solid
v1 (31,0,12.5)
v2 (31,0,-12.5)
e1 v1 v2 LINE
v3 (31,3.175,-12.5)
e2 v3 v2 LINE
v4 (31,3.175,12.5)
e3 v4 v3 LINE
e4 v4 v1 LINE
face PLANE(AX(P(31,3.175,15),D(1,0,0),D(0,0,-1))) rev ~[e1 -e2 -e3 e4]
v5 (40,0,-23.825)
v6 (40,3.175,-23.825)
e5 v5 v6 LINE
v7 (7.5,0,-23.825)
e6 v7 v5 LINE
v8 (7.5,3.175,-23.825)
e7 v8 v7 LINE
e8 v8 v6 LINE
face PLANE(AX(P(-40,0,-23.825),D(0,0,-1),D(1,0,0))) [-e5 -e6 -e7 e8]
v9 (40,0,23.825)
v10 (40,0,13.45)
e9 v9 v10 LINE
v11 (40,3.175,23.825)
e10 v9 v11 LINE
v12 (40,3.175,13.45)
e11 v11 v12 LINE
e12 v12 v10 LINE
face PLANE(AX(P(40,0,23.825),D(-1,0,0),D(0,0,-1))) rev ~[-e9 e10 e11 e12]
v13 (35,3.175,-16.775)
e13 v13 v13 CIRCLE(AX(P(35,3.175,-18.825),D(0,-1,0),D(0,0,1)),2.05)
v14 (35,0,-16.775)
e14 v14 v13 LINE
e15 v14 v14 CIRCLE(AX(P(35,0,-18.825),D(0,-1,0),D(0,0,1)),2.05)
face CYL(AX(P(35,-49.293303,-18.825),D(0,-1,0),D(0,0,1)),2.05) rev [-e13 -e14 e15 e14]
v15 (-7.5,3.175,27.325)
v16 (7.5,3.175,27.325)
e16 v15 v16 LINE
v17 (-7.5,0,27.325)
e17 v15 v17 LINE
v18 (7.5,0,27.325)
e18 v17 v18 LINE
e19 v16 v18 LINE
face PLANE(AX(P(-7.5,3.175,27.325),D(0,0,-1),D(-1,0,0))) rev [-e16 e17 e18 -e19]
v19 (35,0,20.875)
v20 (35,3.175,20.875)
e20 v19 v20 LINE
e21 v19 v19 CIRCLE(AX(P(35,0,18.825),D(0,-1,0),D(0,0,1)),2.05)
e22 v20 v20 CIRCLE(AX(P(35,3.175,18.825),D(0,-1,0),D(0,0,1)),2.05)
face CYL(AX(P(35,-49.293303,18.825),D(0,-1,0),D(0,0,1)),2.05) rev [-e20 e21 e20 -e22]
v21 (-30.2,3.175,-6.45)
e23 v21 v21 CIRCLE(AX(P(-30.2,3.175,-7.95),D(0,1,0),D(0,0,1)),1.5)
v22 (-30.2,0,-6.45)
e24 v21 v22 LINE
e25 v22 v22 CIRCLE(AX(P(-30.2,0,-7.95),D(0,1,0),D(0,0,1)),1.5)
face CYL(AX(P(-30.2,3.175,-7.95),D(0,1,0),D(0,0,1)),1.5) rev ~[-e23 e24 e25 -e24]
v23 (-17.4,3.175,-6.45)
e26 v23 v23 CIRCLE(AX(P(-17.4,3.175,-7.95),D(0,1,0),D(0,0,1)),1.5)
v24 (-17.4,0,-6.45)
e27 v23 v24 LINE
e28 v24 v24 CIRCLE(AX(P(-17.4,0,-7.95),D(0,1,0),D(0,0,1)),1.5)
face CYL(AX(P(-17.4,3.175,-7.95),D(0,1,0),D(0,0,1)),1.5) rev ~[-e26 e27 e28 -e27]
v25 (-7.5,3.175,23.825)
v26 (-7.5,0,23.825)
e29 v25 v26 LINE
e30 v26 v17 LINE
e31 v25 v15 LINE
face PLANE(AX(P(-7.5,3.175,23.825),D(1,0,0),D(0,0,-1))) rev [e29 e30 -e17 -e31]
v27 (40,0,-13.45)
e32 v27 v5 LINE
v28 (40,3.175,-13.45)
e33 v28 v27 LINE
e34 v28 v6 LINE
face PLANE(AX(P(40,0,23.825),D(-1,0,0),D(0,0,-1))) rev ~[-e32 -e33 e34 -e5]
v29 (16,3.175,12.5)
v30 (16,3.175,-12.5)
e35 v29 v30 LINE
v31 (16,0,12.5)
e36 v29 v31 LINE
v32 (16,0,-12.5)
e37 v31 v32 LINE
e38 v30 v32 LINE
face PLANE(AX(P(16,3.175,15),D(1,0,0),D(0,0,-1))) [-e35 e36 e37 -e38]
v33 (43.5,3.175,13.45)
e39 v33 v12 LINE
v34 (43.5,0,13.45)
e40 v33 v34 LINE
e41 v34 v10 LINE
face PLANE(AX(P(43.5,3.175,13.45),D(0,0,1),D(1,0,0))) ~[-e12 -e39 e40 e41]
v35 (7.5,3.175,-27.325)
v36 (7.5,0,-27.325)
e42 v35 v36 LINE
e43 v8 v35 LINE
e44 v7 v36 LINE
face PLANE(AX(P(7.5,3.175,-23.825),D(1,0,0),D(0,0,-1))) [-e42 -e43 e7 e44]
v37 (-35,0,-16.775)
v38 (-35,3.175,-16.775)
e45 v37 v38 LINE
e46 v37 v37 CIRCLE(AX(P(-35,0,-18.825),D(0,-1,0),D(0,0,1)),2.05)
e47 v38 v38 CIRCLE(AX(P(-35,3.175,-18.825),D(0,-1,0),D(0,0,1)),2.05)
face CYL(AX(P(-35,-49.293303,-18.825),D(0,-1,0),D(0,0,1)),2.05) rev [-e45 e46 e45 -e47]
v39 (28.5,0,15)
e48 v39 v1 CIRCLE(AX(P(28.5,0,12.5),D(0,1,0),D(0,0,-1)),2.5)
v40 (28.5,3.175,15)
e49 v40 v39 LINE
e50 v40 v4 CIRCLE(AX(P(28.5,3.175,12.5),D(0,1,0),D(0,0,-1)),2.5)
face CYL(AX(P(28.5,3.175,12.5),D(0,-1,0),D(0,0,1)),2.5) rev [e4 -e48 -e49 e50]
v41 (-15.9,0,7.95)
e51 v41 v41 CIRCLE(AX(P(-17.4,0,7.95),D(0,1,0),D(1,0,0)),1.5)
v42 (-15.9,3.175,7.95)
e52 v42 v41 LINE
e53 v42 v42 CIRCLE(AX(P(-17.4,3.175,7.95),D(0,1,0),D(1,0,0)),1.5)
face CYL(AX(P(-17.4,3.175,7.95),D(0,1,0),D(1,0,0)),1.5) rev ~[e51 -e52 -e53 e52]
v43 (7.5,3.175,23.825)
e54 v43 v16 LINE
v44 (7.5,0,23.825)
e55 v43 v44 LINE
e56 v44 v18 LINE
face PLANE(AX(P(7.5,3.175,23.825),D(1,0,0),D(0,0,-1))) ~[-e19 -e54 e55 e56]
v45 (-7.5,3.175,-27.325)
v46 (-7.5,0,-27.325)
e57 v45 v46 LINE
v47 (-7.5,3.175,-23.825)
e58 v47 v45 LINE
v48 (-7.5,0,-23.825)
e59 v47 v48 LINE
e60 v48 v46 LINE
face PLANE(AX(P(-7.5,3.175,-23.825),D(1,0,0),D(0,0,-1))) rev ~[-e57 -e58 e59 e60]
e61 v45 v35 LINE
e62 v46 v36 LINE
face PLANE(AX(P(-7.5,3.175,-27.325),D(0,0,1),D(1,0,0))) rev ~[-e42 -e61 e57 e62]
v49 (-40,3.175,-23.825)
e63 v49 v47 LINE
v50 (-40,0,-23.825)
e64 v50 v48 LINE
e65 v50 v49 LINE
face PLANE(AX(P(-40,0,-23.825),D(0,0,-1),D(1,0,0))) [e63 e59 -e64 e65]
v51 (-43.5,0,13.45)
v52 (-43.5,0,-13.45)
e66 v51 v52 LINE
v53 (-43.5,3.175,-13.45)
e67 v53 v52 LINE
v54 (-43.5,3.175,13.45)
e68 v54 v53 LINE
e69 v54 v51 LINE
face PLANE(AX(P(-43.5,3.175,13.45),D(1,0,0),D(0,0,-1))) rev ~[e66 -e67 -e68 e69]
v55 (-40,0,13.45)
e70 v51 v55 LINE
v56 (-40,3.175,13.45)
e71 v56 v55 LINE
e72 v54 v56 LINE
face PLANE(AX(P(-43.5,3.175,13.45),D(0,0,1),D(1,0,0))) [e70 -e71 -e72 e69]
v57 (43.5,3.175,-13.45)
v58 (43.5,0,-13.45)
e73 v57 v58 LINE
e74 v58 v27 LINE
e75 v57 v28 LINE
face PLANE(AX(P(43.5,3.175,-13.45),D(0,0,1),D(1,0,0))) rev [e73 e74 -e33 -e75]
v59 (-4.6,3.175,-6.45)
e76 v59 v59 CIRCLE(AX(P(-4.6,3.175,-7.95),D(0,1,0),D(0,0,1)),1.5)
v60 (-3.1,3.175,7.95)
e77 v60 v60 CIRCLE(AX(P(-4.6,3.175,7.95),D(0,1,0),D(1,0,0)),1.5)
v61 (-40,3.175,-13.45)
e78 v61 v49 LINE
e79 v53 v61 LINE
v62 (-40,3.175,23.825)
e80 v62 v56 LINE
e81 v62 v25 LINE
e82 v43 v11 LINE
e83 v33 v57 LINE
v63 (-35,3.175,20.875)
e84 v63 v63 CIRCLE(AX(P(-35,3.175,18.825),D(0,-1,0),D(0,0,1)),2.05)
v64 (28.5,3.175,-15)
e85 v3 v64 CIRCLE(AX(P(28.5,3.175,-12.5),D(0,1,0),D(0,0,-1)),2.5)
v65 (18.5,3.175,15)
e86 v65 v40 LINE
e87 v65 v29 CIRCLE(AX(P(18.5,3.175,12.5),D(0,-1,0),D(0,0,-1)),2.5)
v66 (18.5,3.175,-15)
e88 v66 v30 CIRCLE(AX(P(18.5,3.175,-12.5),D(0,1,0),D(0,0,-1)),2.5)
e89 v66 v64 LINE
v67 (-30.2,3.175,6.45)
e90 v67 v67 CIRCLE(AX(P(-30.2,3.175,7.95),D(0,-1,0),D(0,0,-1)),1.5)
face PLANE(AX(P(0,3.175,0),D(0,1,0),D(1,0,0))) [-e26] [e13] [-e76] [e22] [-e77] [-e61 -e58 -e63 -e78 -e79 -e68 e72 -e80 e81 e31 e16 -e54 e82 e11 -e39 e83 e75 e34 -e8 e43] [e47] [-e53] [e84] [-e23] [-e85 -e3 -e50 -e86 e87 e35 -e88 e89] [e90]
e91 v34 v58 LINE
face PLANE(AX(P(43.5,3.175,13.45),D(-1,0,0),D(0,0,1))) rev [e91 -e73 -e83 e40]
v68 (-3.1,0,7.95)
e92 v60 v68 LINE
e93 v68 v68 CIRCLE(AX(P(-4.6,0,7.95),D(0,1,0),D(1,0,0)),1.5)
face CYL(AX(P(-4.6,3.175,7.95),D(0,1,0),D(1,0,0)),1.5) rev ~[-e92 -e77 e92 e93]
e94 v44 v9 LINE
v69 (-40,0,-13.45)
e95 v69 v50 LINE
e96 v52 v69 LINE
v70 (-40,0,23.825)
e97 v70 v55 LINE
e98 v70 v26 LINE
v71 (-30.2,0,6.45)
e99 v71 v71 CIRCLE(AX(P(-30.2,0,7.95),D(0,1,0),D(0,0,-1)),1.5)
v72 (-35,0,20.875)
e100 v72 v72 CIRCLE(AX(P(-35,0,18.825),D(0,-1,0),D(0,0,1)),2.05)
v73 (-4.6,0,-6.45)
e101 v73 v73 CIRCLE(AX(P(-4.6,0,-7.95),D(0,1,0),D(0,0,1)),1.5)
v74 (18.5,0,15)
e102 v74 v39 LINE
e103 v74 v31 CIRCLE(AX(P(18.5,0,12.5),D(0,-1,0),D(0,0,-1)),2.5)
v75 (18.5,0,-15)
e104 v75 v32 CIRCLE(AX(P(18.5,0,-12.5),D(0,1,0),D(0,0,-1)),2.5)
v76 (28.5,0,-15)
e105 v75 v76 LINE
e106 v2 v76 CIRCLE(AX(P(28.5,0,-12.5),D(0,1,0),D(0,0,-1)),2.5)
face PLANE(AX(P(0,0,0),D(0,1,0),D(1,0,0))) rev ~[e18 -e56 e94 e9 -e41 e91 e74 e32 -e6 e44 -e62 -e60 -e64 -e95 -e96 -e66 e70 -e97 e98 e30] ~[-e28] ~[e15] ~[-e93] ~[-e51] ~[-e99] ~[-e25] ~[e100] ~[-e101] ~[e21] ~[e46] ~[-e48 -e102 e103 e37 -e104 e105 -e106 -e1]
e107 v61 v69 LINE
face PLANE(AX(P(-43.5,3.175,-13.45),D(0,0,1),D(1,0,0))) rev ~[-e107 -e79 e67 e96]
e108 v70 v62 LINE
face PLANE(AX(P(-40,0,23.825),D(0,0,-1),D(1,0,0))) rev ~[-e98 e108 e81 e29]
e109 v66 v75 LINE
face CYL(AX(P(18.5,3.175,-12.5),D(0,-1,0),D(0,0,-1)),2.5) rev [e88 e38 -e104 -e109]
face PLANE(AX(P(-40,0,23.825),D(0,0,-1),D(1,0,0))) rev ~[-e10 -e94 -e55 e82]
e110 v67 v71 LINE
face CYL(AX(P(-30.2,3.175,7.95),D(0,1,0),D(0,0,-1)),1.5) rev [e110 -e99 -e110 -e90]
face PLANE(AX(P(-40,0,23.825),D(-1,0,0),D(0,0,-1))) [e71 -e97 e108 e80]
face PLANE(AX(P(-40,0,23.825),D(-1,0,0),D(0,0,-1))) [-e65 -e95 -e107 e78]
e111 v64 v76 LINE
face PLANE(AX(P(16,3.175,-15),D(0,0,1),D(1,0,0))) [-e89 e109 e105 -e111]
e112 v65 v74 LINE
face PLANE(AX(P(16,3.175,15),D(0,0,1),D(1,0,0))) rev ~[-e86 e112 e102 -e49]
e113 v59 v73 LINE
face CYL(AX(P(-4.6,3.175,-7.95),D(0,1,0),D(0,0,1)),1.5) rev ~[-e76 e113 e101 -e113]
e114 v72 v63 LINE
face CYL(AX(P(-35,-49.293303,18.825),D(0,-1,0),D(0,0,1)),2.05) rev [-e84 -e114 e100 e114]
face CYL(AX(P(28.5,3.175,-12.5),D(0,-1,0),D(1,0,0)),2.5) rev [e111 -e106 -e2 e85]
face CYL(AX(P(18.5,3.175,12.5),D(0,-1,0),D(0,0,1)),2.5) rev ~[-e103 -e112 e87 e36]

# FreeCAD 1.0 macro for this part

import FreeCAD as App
import Part
import Sketcher
from FreeCAD import Vector
Q = App.Units.Quantity


def edges_at(feature, points):
    """Names of the edges that pass closest to the given points."""
    edges = feature.Shape.Edges
    near = lambda p: min(range(len(edges)), key=lambda i: edges[i].distToShape(Part.Vertex(*p))[0])
    return sorted({f"Edge{near(p) + 1}" for p in points})

doc = App.newDocument("Part")
body = doc.addObject("PartDesign::Body", "Body")

# Sketch on XZ plane
sketch1 = doc.addObject("Sketcher::SketchObject", "Sketch")
body.addObject(sketch1)
sketch1.AttachmentSupport = (doc.XZ_Plane, [""])
sketch1.MapMode = "FlatFace"
sketch1.addGeometry(Part.LineSegment(Vector(-40, -24, 0), Vector(-40, 24, 0)), False)
sketch1.addGeometry(Part.LineSegment(Vector(-40, 24, 0), Vector(40, 24, 0)), False)
sketch1.addGeometry(Part.LineSegment(Vector(40, 24, 0), Vector(40, -24, 0)), False)
sketch1.addGeometry(Part.LineSegment(Vector(40, -24, 0), Vector(-40, -24, 0)), False)
sketch1.addConstraint(Sketcher.Constraint("Coincident", 0, 2, 1, 1))
sketch1.addConstraint(Sketcher.Constraint("Coincident", 1, 2, 2, 1))
sketch1.addConstraint(Sketcher.Constraint("Coincident", 2, 2, 3, 1))
sketch1.addConstraint(Sketcher.Constraint("Coincident", 3, 2, 0, 1))
sketch1.addConstraint(Sketcher.Constraint("Vertical", 0))
sketch1.addConstraint(Sketcher.Constraint("Horizontal", 1))
sketch1.addConstraint(Sketcher.Constraint("Vertical", 2))
sketch1.addConstraint(Sketcher.Constraint("Horizontal", 3))
sketch1.addConstraint(Sketcher.Constraint("Symmetric", 0, 2, 2, 2, -1, 1))
sketch1.addConstraint(Sketcher.Constraint("DistanceX", 1, 1, 1, 2, Q("80 mm")))
sketch1.addConstraint(Sketcher.Constraint("DistanceY", 0, 1, 0, 2, Q("47.65 mm")))
pad1 = doc.addObject("PartDesign::Pad", "Pad")
body.addObject(pad1)
pad1.Profile = sketch1
pad1.Length = 3.175
pad1.Reversed = True

# Sketch on XZ plane
sketch2 = doc.addObject("Sketcher::SketchObject", "Sketch001")
body.addObject(sketch2)
sketch2.AttachmentSupport = (doc.XZ_Plane, [""])
sketch2.MapMode = "FlatFace"
sketch2.AttachmentOffset = App.Placement(Vector(0, 0, -3.175), App.Rotation())
sketch2.addGeometry(Part.LineSegment(Vector(-7.5, -27.3, 0), Vector(-7.5, -23.8, 0)), False)
sketch2.addGeometry(Part.LineSegment(Vector(-7.5, -23.8, 0), Vector(7.5, -23.8, 0)), False)
sketch2.addGeometry(Part.LineSegment(Vector(7.5, -23.8, 0), Vector(7.5, -27.3, 0)), False)
sketch2.addGeometry(Part.LineSegment(Vector(7.5, -27.3, 0), Vector(-7.5, -27.3, 0)), False)
sketch2.addConstraint(Sketcher.Constraint("Coincident", 0, 2, 1, 1))
sketch2.addConstraint(Sketcher.Constraint("Coincident", 1, 2, 2, 1))
sketch2.addConstraint(Sketcher.Constraint("Coincident", 2, 2, 3, 1))
sketch2.addConstraint(Sketcher.Constraint("Coincident", 3, 2, 0, 1))
sketch2.addConstraint(Sketcher.Constraint("Vertical", 0))
sketch2.addConstraint(Sketcher.Constraint("Horizontal", 1))
sketch2.addConstraint(Sketcher.Constraint("Vertical", 2))
sketch2.addConstraint(Sketcher.Constraint("Horizontal", 3))
sketch2.addConstraint(Sketcher.Constraint("DistanceX", 1, 1, 1, 2, Q("15 mm")))
sketch2.addConstraint(Sketcher.Constraint("DistanceY", 0, 1, 0, 2, Q("3.5 mm")))
sketch2.addConstraint(Sketcher.Constraint("DistanceX", 0, 2, -1, 1, Q("7.5 mm")))
sketch2.addConstraint(Sketcher.Constraint("DistanceY", 0, 2, -1, 1, Q("23.825 mm")))
pad2 = doc.addObject("PartDesign::Pad", "Pad001")
body.addObject(pad2)
pad2.Profile = sketch2
pad2.Length = 3.175

# Sketch on XZ plane
sketch3 = doc.addObject("Sketcher::SketchObject", "Sketch002")
body.addObject(sketch3)
sketch3.AttachmentSupport = (doc.XZ_Plane, [""])
sketch3.MapMode = "FlatFace"
sketch3.AttachmentOffset = App.Placement(Vector(0, 0, -3.175), App.Rotation())
sketch3.addGeometry(Part.LineSegment(Vector(-43.5, -13.4, 0), Vector(-43.5, 13.4, 0)), False)
sketch3.addGeometry(Part.LineSegment(Vector(-43.5, 13.4, 0), Vector(-40, 13.4, 0)), False)
sketch3.addGeometry(Part.LineSegment(Vector(-40, 13.4, 0), Vector(-40, -13.4, 0)), False)
sketch3.addGeometry(Part.LineSegment(Vector(-40, -13.4, 0), Vector(-43.5, -13.4, 0)), False)
sketch3.addConstraint(Sketcher.Constraint("Coincident", 0, 2, 1, 1))
sketch3.addConstraint(Sketcher.Constraint("Coincident", 1, 2, 2, 1))
sketch3.addConstraint(Sketcher.Constraint("Coincident", 2, 2, 3, 1))
sketch3.addConstraint(Sketcher.Constraint("Coincident", 3, 2, 0, 1))
sketch3.addConstraint(Sketcher.Constraint("Vertical", 0))
sketch3.addConstraint(Sketcher.Constraint("Horizontal", 1))
sketch3.addConstraint(Sketcher.Constraint("Vertical", 2))
sketch3.addConstraint(Sketcher.Constraint("Horizontal", 3))
sketch3.addConstraint(Sketcher.Constraint("DistanceX", 1, 1, 1, 2, Q("3.5 mm")))
sketch3.addConstraint(Sketcher.Constraint("DistanceY", 0, 1, 0, 2, Q("26.9 mm")))
sketch3.addConstraint(Sketcher.Constraint("DistanceX", 1, 2, -1, 1, Q("40 mm")))
sketch3.addConstraint(Sketcher.Constraint("DistanceY", -1, 1, 0, 2, Q("13.45 mm")))
pad3 = doc.addObject("PartDesign::Pad", "Pad002")
body.addObject(pad3)
pad3.Profile = sketch3
pad3.Length = 3.175
doc.recompute()

mirrored = doc.addObject("PartDesign::Mirrored", "Mirrored")
body.addObject(mirrored)
mirrored.Originals = [pad3]
mirrored.MirrorPlane = (doc.YZ_Plane, [""])
body.Tip = mirrored
doc.recompute()

mirrored2 = doc.addObject("PartDesign::Mirrored", "Mirrored001")
body.addObject(mirrored2)
mirrored2.Originals = [pad2]
mirrored2.MirrorPlane = (doc.XY_Plane, [""])
body.Tip = mirrored2

# Sketch on XZ plane
sketch4 = doc.addObject("Sketcher::SketchObject", "Sketch003")
body.addObject(sketch4)
sketch4.AttachmentSupport = (doc.XZ_Plane, [""])
sketch4.MapMode = "FlatFace"
sketch4.AttachmentOffset = App.Placement(Vector(0, 0, -3.175), App.Rotation())
sketch4.addGeometry(Part.Circle(Vector(-30.2, -8, 0), Vector(0, 0, 1), 1.5), False)
sketch4.addConstraint(Sketcher.Constraint("Diameter", 0, Q("3 mm")))
sketch4.addConstraint(Sketcher.Constraint("DistanceX", 0, 3, -1, 1, Q("30.2 mm")))
sketch4.addConstraint(Sketcher.Constraint("DistanceY", 0, 3, -1, 1, Q("7.95 mm")))
pocket1 = doc.addObject("PartDesign::Pocket", "Pocket")
body.addObject(pocket1)
pocket1.Profile = sketch4
pocket1.Length = 20
pocket1.Reversed = True
doc.recompute()

linearpattern = doc.addObject("PartDesign::LinearPattern", "LinearPattern")
body.addObject(linearpattern)
linearpattern.Originals = [pocket1]
linearpattern.Direction = (doc.X_Axis, [""])
linearpattern.Mode = "offset"
linearpattern.Offset = 12.8
linearpattern.Occurrences = 3
body.Tip = linearpattern
doc.recompute()

mirrored3 = doc.addObject("PartDesign::Mirrored", "Mirrored002")
body.addObject(mirrored3)
mirrored3.Originals = [pocket1]
mirrored3.MirrorPlane = (doc.XY_Plane, [""])
body.Tip = mirrored3

# Sketch on XZ plane
sketch5 = doc.addObject("Sketcher::SketchObject", "Sketch004")
body.addObject(sketch5)
sketch5.AttachmentSupport = (doc.XZ_Plane, [""])
sketch5.MapMode = "FlatFace"
sketch5.AttachmentOffset = App.Placement(Vector(0, 0, -3.175), App.Rotation())
sketch5.addGeometry(Part.Circle(Vector(-17.4, 8, 0), Vector(0, 0, 1), 1.5), False)
sketch5.addConstraint(Sketcher.Constraint("Diameter", 0, Q("3 mm")))
sketch5.addConstraint(Sketcher.Constraint("DistanceX", 0, 3, -1, 1, Q("17.4 mm")))
sketch5.addConstraint(Sketcher.Constraint("DistanceY", -1, 1, 0, 3, Q("7.95 mm")))
pocket2 = doc.addObject("PartDesign::Pocket", "Pocket001")
body.addObject(pocket2)
pocket2.Profile = sketch5
pocket2.Length = 20
pocket2.Reversed = True

# Sketch on XZ plane
sketch6 = doc.addObject("Sketcher::SketchObject", "Sketch005")
body.addObject(sketch6)
sketch6.AttachmentSupport = (doc.XZ_Plane, [""])
sketch6.MapMode = "FlatFace"
sketch6.AttachmentOffset = App.Placement(Vector(0, 0, -3.175), App.Rotation())
sketch6.addGeometry(Part.Circle(Vector(-4.6, 8, 0), Vector(0, 0, 1), 1.5), False)
sketch6.addConstraint(Sketcher.Constraint("Diameter", 0, Q("3 mm")))
sketch6.addConstraint(Sketcher.Constraint("DistanceX", 0, 3, -1, 1, Q("4.6 mm")))
sketch6.addConstraint(Sketcher.Constraint("DistanceY", -1, 1, 0, 3, Q("7.95 mm")))
pocket3 = doc.addObject("PartDesign::Pocket", "Pocket002")
body.addObject(pocket3)
pocket3.Profile = sketch6
pocket3.Length = 20
pocket3.Reversed = True

# Sketch on XZ plane
sketch7 = doc.addObject("Sketcher::SketchObject", "Sketch006")
body.addObject(sketch7)
sketch7.AttachmentSupport = (doc.XZ_Plane, [""])
sketch7.MapMode = "FlatFace"
sketch7.AttachmentOffset = App.Placement(Vector(0, 0, -3.175), App.Rotation())
sketch7.addGeometry(Part.LineSegment(Vector(16, -15, 0), Vector(16, 15, 0)), False)
sketch7.addGeometry(Part.LineSegment(Vector(16, 15, 0), Vector(31, 15, 0)), False)
sketch7.addGeometry(Part.LineSegment(Vector(31, 15, 0), Vector(31, -15, 0)), False)
sketch7.addGeometry(Part.LineSegment(Vector(31, -15, 0), Vector(16, -15, 0)), False)
sketch7.addConstraint(Sketcher.Constraint("Coincident", 0, 2, 1, 1))
sketch7.addConstraint(Sketcher.Constraint("Coincident", 1, 2, 2, 1))
sketch7.addConstraint(Sketcher.Constraint("Coincident", 2, 2, 3, 1))
sketch7.addConstraint(Sketcher.Constraint("Coincident", 3, 2, 0, 1))
sketch7.addConstraint(Sketcher.Constraint("Vertical", 0))
sketch7.addConstraint(Sketcher.Constraint("Horizontal", 1))
sketch7.addConstraint(Sketcher.Constraint("Vertical", 2))
sketch7.addConstraint(Sketcher.Constraint("Horizontal", 3))
sketch7.addConstraint(Sketcher.Constraint("DistanceX", 1, 1, 1, 2, Q("15 mm")))
sketch7.addConstraint(Sketcher.Constraint("DistanceY", 0, 1, 0, 2, Q("30 mm")))
sketch7.addConstraint(Sketcher.Constraint("DistanceX", -1, 1, 0, 2, Q("16 mm")))
sketch7.addConstraint(Sketcher.Constraint("DistanceY", -1, 1, 0, 2, Q("15 mm")))
pocket4 = doc.addObject("PartDesign::Pocket", "Pocket003")
body.addObject(pocket4)
pocket4.Profile = sketch7
pocket4.Type = "ThroughAll"
pocket4.Reversed = True
doc.recompute()

fillet = doc.addObject("PartDesign::Fillet", "Fillet")
body.addObject(fillet)
fillet.Base = (pocket4, edges_at(pocket4, [
    (16, 1.587, 15),
    (16, 1.587, -15),
    (31, 1.587, -15),
    (31, 1.587, 15),
]))
fillet.Radius = 2.5

# Sketch on XZ plane
sketch8 = doc.addObject("Sketcher::SketchObject", "Sketch007")
body.addObject(sketch8)
sketch8.AttachmentSupport = (doc.XZ_Plane, [""])
sketch8.MapMode = "FlatFace"
sketch8.AttachmentOffset = App.Placement(Vector(0, 0, -3.175), App.Rotation())
sketch8.addGeometry(Part.Circle(Vector(-35, -18.8, 0), Vector(0, 0, 1), 2), False)
sketch8.addGeometry(Part.Circle(Vector(35, -18.8, 0), Vector(0, 0, 1), 2), False)
sketch8.addGeometry(Part.Circle(Vector(-35, 18.8, 0), Vector(0, 0, 1), 2), False)
sketch8.addGeometry(Part.Circle(Vector(35, 18.8, 0), Vector(0, 0, 1), 2), False)
sketch8.addConstraint(Sketcher.Constraint("Equal", 0, 1))
sketch8.addConstraint(Sketcher.Constraint("Equal", 1, 2))
sketch8.addConstraint(Sketcher.Constraint("Equal", 2, 3))
sketch8.addConstraint(Sketcher.Constraint("Symmetric", 1, 3, 2, 3, -1, 1))
sketch8.addConstraint(Sketcher.Constraint("Symmetric", 0, 3, 3, 3, -1, 1))
sketch8.addConstraint(Sketcher.Constraint("Symmetric", 0, 3, 1, 3, -2))
sketch8.addConstraint(Sketcher.Constraint("Diameter", 0, Q("4.1 mm")))
sketch8.addConstraint(Sketcher.Constraint("DistanceX", 0, 3, -1, 1, Q("35 mm")))
sketch8.addConstraint(Sketcher.Constraint("DistanceY", 0, 3, 2, 3, Q("37.65 mm")))
pocket5 = doc.addObject("PartDesign::Pocket", "Pocket004")
body.addObject(pocket5)
pocket5.Profile = sketch8
pocket5.Type = "ThroughAll"
pocket5.Midplane = True

doc.recompute()
